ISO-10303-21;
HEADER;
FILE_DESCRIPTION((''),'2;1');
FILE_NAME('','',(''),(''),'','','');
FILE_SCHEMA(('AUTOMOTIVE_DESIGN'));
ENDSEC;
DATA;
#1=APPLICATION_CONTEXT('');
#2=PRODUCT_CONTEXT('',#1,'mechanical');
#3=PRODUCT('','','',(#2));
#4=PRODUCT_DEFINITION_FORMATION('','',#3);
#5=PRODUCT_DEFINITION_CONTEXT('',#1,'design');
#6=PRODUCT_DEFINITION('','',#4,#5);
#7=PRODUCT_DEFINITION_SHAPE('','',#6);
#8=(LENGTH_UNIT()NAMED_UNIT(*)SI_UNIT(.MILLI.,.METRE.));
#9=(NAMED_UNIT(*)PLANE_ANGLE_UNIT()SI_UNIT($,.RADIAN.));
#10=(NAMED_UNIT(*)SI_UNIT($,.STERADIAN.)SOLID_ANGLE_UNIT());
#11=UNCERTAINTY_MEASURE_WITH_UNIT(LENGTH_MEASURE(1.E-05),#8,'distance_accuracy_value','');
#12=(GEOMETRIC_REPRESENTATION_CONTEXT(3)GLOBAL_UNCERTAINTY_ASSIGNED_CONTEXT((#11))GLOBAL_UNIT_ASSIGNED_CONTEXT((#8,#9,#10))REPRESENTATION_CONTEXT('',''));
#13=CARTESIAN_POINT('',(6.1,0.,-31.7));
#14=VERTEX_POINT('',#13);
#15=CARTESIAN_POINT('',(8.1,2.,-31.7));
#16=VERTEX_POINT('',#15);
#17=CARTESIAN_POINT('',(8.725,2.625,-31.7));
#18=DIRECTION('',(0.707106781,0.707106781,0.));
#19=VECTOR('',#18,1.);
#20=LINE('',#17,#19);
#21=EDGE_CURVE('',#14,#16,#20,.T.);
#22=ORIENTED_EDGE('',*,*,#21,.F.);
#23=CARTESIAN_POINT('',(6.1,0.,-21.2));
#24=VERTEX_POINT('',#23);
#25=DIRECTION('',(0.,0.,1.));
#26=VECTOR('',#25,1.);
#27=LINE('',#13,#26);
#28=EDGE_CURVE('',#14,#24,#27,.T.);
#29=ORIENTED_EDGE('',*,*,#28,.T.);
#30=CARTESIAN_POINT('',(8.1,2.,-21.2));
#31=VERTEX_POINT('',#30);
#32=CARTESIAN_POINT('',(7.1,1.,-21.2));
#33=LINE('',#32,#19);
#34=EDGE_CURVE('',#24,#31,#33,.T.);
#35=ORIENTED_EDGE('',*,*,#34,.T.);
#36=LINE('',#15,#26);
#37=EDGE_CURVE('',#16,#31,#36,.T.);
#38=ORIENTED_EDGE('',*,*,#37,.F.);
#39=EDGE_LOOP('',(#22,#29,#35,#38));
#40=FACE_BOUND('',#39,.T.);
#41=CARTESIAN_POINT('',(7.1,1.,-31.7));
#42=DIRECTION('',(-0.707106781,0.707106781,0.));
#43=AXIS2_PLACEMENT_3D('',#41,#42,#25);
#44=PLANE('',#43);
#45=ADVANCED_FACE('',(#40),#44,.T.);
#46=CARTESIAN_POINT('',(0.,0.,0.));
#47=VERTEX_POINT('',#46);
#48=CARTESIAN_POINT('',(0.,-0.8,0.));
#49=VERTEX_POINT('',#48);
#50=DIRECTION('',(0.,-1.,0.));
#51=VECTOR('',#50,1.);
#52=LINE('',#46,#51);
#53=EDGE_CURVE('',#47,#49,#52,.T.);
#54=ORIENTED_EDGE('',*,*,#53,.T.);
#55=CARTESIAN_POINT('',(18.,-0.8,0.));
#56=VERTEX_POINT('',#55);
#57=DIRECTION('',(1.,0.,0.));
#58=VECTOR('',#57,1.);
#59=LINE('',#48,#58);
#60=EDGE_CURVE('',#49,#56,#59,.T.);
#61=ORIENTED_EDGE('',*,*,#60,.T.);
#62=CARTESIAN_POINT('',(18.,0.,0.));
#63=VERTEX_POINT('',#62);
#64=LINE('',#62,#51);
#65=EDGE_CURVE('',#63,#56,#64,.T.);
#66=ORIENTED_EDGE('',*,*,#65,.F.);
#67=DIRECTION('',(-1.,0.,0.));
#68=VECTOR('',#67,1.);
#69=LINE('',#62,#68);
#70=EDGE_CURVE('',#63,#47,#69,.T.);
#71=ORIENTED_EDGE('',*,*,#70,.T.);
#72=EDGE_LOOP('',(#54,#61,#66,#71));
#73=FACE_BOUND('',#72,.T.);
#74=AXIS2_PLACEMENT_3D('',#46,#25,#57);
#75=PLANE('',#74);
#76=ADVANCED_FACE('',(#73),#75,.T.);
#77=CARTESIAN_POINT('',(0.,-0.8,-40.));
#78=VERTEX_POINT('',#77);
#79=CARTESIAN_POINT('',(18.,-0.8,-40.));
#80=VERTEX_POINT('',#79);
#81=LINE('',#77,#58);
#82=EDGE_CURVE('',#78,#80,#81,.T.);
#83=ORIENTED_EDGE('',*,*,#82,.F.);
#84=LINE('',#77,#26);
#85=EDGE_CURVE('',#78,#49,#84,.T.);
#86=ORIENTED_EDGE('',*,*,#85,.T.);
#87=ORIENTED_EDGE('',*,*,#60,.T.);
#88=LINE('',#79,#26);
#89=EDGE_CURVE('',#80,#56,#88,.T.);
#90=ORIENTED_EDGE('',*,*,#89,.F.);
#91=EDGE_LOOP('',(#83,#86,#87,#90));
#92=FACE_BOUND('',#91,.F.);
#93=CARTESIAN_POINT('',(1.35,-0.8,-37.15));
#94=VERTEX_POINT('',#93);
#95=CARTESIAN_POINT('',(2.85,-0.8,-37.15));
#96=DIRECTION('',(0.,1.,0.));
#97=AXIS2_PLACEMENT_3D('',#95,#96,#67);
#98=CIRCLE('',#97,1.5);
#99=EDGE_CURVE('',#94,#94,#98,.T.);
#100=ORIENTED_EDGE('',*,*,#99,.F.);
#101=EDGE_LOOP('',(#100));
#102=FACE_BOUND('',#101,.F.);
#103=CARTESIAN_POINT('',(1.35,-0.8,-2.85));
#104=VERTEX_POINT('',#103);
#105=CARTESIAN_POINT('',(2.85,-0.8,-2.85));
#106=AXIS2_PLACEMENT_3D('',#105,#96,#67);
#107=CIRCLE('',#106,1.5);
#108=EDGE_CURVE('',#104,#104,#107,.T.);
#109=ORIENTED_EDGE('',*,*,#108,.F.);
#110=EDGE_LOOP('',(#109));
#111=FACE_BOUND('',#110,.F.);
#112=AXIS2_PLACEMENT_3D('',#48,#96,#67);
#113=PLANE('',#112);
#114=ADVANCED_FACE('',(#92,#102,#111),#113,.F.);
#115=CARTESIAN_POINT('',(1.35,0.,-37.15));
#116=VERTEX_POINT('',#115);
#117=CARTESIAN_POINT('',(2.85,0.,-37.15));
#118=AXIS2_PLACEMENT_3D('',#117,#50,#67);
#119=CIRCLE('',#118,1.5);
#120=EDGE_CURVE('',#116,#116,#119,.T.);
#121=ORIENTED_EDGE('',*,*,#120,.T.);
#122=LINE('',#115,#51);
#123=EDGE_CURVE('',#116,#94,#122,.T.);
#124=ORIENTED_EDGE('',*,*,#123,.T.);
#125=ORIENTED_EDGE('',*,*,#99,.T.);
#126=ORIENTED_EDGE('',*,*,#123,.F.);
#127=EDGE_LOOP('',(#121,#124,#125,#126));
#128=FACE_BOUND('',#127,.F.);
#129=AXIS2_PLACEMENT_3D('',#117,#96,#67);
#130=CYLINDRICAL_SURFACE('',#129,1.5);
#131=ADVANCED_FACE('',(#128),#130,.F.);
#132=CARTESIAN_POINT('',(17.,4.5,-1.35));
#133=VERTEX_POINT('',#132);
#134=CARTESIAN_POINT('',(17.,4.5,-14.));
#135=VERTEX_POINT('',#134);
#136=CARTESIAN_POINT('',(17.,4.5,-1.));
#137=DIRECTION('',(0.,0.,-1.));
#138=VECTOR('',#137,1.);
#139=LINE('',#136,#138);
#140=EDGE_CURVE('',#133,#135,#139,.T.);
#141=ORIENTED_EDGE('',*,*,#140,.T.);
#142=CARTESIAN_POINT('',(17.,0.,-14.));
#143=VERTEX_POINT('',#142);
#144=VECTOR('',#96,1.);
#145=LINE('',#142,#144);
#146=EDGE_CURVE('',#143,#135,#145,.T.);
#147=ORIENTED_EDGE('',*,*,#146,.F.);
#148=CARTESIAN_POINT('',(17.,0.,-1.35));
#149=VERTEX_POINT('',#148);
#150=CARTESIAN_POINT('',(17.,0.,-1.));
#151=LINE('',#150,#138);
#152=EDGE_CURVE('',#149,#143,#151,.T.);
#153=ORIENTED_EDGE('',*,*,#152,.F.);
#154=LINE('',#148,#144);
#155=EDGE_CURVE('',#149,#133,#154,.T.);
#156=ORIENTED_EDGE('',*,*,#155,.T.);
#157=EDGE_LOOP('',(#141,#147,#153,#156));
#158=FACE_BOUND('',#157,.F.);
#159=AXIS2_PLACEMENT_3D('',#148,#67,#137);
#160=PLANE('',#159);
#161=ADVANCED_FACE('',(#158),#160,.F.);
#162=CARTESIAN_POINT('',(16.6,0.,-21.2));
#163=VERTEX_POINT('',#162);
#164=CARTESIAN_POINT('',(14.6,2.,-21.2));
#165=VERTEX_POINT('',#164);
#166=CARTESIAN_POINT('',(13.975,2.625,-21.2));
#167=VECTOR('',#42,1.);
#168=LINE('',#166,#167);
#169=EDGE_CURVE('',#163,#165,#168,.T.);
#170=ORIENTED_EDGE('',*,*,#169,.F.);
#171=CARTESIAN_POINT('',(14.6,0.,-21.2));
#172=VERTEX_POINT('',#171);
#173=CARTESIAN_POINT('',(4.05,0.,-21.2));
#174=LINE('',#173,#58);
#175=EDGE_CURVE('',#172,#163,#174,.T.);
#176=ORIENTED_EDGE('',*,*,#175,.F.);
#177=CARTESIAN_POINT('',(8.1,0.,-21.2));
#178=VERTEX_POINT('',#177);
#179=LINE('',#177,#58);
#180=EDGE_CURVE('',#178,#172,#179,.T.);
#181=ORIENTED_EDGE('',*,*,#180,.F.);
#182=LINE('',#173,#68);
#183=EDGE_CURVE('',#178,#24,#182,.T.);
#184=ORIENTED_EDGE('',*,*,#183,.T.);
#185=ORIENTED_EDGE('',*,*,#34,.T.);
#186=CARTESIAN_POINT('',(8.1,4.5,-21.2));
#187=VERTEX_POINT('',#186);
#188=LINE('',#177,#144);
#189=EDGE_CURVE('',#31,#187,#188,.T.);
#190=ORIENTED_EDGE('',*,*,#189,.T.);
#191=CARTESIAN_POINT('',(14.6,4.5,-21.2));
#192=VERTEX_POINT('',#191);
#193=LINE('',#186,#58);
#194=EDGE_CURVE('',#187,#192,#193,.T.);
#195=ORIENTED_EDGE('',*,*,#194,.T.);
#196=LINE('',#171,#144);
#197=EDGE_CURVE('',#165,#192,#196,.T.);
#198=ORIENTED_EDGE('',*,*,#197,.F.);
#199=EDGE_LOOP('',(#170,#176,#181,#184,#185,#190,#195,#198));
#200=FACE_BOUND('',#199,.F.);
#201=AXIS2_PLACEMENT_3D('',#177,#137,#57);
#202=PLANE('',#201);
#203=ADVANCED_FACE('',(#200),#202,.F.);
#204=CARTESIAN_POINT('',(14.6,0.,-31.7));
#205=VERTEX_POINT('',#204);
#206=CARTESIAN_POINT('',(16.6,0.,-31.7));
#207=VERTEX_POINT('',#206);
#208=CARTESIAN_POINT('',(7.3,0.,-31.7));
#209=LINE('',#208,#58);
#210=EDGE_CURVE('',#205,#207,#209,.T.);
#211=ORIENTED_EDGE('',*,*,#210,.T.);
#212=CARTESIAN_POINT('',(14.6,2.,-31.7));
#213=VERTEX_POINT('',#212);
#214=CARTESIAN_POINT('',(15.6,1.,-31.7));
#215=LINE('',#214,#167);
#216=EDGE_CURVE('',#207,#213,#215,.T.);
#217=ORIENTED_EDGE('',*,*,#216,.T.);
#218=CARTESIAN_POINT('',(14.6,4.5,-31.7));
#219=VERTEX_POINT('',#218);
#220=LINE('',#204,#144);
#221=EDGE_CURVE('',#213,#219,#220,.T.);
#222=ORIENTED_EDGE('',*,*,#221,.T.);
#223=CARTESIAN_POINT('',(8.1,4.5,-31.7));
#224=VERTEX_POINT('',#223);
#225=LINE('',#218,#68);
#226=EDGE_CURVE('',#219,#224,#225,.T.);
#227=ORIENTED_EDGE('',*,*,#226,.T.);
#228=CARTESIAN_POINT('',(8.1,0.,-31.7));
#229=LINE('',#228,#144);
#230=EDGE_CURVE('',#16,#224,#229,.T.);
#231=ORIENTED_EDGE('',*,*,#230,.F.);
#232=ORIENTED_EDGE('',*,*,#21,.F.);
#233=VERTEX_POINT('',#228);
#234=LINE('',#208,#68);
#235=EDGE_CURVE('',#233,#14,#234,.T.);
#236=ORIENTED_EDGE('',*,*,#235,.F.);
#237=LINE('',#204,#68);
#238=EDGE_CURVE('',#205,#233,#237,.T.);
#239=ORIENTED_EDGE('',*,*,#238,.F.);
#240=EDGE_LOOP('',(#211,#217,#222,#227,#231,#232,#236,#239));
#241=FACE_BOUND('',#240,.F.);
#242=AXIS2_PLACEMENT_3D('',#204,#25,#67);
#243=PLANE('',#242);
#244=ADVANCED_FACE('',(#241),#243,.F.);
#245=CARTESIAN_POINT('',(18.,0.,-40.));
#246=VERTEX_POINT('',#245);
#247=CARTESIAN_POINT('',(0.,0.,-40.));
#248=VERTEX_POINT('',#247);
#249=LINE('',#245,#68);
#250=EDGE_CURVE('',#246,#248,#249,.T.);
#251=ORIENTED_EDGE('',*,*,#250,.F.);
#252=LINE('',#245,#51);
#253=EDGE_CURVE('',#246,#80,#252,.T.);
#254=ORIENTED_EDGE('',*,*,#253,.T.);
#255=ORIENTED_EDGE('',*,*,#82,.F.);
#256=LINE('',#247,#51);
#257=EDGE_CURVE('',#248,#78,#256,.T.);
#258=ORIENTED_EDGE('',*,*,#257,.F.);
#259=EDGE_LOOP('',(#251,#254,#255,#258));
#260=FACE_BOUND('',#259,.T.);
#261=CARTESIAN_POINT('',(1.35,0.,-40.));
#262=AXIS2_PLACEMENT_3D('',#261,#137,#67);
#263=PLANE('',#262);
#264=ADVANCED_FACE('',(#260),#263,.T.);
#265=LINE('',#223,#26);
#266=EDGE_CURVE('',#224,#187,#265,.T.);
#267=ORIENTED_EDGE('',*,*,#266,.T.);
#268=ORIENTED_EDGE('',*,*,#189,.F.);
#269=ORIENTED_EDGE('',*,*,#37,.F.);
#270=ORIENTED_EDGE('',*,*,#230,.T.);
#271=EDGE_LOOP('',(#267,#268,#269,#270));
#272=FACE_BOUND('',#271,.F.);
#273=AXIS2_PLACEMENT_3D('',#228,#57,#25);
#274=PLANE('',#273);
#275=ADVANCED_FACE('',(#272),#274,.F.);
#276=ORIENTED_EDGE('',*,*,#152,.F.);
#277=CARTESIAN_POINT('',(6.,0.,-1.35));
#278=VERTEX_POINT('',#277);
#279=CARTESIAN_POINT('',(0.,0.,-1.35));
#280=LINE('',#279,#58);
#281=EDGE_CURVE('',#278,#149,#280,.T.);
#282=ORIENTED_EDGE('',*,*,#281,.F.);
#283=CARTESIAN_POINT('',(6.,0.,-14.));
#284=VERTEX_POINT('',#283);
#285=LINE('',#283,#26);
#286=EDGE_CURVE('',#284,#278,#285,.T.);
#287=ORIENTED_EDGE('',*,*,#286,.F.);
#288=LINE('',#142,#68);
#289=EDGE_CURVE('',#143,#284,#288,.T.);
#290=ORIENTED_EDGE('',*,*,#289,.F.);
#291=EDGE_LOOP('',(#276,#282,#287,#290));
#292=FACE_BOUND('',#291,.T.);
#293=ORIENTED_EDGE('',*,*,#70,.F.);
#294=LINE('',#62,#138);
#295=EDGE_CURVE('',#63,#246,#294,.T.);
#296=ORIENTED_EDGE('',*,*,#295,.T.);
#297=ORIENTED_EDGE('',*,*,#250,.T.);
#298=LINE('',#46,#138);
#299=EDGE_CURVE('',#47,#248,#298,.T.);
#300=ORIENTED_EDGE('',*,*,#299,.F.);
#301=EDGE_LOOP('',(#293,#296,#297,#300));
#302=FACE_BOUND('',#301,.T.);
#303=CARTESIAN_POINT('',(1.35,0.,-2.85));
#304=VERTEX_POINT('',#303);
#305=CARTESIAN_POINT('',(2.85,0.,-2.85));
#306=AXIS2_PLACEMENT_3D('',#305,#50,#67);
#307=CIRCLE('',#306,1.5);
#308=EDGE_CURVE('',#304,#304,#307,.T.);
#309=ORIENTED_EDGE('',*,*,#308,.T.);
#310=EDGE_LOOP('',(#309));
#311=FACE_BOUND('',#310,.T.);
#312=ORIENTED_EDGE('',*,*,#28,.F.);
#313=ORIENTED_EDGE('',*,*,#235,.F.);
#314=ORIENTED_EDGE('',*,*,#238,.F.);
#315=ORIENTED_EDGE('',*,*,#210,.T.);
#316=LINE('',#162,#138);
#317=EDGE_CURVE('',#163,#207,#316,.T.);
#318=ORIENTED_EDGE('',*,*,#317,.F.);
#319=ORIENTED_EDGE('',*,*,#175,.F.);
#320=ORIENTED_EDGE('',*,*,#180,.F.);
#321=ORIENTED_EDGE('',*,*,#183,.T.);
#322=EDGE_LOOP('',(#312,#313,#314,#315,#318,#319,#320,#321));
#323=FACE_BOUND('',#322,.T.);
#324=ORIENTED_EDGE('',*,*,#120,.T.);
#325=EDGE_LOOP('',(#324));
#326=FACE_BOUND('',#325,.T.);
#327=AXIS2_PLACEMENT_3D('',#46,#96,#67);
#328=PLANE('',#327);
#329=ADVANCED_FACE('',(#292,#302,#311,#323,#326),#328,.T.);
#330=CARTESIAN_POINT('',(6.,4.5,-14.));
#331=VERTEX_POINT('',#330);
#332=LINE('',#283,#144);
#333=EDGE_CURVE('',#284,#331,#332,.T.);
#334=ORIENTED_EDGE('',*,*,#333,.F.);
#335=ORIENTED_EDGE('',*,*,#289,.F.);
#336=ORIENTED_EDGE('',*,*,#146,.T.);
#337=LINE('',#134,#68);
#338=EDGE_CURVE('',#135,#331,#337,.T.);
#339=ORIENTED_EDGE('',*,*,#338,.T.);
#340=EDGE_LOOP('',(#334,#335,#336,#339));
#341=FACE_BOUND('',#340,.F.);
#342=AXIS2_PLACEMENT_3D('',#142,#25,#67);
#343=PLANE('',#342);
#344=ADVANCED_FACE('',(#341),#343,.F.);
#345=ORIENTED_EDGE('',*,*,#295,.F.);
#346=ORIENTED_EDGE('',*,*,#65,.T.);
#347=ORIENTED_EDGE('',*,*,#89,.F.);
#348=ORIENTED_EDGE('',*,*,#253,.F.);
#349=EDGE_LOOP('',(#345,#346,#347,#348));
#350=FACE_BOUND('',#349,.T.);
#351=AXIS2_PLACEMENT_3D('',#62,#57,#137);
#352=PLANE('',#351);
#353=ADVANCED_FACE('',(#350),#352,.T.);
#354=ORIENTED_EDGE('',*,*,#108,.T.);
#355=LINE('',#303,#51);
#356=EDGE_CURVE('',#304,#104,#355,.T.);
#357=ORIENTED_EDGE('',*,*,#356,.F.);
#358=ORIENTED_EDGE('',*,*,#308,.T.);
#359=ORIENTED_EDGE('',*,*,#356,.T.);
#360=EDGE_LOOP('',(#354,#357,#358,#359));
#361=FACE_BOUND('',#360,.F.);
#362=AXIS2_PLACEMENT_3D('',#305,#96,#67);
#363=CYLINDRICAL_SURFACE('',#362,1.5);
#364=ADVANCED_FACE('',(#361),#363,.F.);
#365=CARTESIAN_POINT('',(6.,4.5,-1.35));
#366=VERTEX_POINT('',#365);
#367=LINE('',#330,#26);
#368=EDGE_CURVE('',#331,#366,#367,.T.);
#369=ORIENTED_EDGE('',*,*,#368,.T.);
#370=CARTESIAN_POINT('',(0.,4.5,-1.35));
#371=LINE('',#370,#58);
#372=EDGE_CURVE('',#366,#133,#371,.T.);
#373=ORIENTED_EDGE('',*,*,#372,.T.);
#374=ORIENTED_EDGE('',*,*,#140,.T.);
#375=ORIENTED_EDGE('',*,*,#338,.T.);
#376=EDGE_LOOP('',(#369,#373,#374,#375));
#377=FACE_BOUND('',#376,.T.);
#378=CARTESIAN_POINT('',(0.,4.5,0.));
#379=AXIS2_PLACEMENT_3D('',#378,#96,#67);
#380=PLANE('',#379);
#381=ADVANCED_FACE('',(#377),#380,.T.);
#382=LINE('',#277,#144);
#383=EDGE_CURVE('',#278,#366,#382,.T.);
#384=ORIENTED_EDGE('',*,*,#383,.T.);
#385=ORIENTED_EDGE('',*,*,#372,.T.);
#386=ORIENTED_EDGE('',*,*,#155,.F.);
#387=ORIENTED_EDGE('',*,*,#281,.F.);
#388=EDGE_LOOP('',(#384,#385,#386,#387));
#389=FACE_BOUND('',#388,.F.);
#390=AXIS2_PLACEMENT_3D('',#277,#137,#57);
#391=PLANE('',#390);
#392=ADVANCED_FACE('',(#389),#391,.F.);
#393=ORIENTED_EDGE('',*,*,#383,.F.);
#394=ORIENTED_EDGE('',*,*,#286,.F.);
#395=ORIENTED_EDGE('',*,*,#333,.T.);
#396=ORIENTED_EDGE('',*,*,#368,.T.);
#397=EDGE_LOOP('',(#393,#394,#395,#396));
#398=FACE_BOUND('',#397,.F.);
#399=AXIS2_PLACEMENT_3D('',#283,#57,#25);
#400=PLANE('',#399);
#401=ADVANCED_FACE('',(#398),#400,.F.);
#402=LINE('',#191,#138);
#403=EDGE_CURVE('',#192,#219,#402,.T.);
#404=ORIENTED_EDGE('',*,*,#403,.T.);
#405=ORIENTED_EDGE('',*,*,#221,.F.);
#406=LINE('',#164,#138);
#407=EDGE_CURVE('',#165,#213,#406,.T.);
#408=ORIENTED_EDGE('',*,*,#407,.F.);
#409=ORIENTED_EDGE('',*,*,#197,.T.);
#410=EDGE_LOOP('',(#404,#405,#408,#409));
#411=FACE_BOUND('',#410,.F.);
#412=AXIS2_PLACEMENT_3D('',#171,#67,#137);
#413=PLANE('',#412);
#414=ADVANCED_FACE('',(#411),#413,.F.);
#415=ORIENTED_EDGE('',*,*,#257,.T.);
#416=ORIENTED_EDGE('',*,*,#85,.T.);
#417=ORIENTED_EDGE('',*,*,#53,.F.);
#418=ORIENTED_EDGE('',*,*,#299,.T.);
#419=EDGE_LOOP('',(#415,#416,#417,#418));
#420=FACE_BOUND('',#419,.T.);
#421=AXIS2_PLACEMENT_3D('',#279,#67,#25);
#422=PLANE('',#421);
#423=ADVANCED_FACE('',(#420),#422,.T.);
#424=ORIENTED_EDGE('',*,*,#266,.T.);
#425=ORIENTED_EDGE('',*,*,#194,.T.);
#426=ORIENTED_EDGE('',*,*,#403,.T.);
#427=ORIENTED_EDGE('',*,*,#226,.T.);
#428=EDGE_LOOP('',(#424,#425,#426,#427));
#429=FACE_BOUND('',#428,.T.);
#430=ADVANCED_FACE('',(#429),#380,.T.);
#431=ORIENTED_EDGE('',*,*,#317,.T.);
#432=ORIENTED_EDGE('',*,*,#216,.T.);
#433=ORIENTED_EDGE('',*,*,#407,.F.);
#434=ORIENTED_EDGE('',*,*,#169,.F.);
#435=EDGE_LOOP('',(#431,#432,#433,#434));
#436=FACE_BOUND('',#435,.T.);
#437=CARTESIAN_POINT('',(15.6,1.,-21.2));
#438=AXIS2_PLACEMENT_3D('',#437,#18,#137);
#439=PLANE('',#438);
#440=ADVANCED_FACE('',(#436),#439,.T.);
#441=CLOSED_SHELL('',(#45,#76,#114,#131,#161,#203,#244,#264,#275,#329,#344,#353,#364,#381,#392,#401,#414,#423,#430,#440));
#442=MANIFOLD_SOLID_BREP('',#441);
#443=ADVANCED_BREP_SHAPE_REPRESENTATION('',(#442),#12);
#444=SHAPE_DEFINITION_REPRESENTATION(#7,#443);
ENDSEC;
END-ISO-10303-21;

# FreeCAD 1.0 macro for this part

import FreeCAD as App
import Part
import Sketcher

V = App.Vector
Q = App.Units.Quantity


def edges_at(feature, points):
    """Names of the edges that pass closest to the given points."""
    edges = feature.Shape.Edges
    near = lambda p: min(range(len(edges)), key=lambda i: edges[i].distToShape(Part.Vertex(*p))[0])
    return sorted({f"Edge{near(p) + 1}" for p in points})

doc = App.newDocument("Part")
body = doc.addObject("PartDesign::Body", "Body")

sketch1 = doc.addObject("Sketcher::SketchObject", "Sketch")
body.addObject(sketch1)
sketch1.AttachmentSupport = (doc.XZ_Plane, [""])
sketch1.MapMode = "FlatFace"
sketch1.addGeometry(Part.LineSegment(V(0, 0, 0), V(18, 0, 0)), False)
sketch1.addGeometry(Part.LineSegment(V(18, 0, 0), V(18, -40, 0)), False)
sketch1.addGeometry(Part.LineSegment(V(18, -40, 0), V(0, -40, 0)), False)
sketch1.addGeometry(Part.LineSegment(V(0, -40, 0), V(0, 0, 0)), False)
sketch1.addGeometry(Part.Circle(V(2.9, -37.1, 0), V(0, 0, 1), 1.5), False)
sketch1.addGeometry(Part.Circle(V(2.9, -2.9, 0), V(0, 0, 1), 1.5), False)
sketch1.addConstraint(Sketcher.Constraint("Coincident", 0, 2, 1, 1))
sketch1.addConstraint(Sketcher.Constraint("Coincident", 1, 2, 2, 1))
sketch1.addConstraint(Sketcher.Constraint("Coincident", 2, 2, 3, 1))
sketch1.addConstraint(Sketcher.Constraint("Coincident", 3, 2, 0, 1))
sketch1.addConstraint(Sketcher.Constraint("Horizontal", 0))
sketch1.addConstraint(Sketcher.Constraint("Vertical", 1))
sketch1.addConstraint(Sketcher.Constraint("Horizontal", 2))
sketch1.addConstraint(Sketcher.Constraint("Vertical", 3))
sketch1.addConstraint(Sketcher.Constraint("Coincident", 3, 2, -1, 1))
sketch1.addConstraint(Sketcher.Constraint("Equal", 4, 5))
sketch1.addConstraint(Sketcher.Constraint("Vertical", 4, 3, 5, 3))
sketch1.addConstraint(Sketcher.Constraint("Diameter", 4, Q("3 mm")))
sketch1.addConstraint(Sketcher.Constraint("DistanceX", 0, 1, 0, 2, Q("18 mm")))
sketch1.addConstraint(Sketcher.Constraint("DistanceY", 1, 2, 1, 1, Q("40 mm")))
sketch1.addConstraint(Sketcher.Constraint("DistanceY", 4, 3, 5, 3, Q("34.3 mm")))
sketch1.addConstraint(Sketcher.Constraint("DistanceX", -1, 1, 4, 3, Q("2.85 mm")))
sketch1.addConstraint(Sketcher.Constraint("DistanceY", 4, 3, -1, 1, Q("37.15 mm")))
pad1 = doc.addObject("PartDesign::Pad", "Pad")
body.addObject(pad1)
pad1.Profile = sketch1
pad1.Length = 0.8

sketch2 = doc.addObject("Sketcher::SketchObject", "Sketch001")
body.addObject(sketch2)
sketch2.AttachmentSupport = (doc.XZ_Plane, [""])
sketch2.MapMode = "FlatFace"
sketch2.addGeometry(Part.LineSegment(V(6, -1, 0), V(17, -1, 0)), False)
sketch2.addGeometry(Part.LineSegment(V(17, -1, 0), V(17, -14, 0)), False)
sketch2.addGeometry(Part.LineSegment(V(17, -14, 0), V(6, -14, 0)), False)
sketch2.addGeometry(Part.LineSegment(V(6, -14, 0), V(6, -1, 0)), False)
sketch2.addConstraint(Sketcher.Constraint("Coincident", 0, 2, 1, 1))
sketch2.addConstraint(Sketcher.Constraint("Coincident", 1, 2, 2, 1))
sketch2.addConstraint(Sketcher.Constraint("Coincident", 2, 2, 3, 1))
sketch2.addConstraint(Sketcher.Constraint("Coincident", 3, 2, 0, 1))
sketch2.addConstraint(Sketcher.Constraint("Horizontal", 0))
sketch2.addConstraint(Sketcher.Constraint("Vertical", 1))
sketch2.addConstraint(Sketcher.Constraint("Horizontal", 2))
sketch2.addConstraint(Sketcher.Constraint("Vertical", 3))
sketch2.addConstraint(Sketcher.Constraint("DistanceX", 0, 1, 0, 2, Q("11 mm")))
sketch2.addConstraint(Sketcher.Constraint("DistanceY", 0, 2, -1, 1, Q("1.35 mm")))
sketch2.addConstraint(Sketcher.Constraint("DistanceX", -1, 1, 0, 2, Q("17 mm")))
sketch2.addConstraint(Sketcher.Constraint("DistanceY", 1, 2, -1, 1, Q("14 mm")))
pad2 = doc.addObject("PartDesign::Pad", "Pad001")
body.addObject(pad2)
pad2.Profile = sketch2
pad2.Length = 4.5
pad2.Reversed = True

sketch3 = doc.addObject("Sketcher::SketchObject", "Sketch002")
body.addObject(sketch3)
sketch3.AttachmentSupport = (doc.XZ_Plane, [""])
sketch3.MapMode = "FlatFace"
sketch3.addGeometry(Part.LineSegment(V(8, -32, 0), V(8, -21, 0)), False)
sketch3.addGeometry(Part.LineSegment(V(8, -21, 0), V(15, -21, 0)), False)
sketch3.addGeometry(Part.LineSegment(V(15, -21, 0), V(15, -32, 0)), False)
sketch3.addGeometry(Part.LineSegment(V(15, -32, 0), V(8, -32, 0)), False)
sketch3.addConstraint(Sketcher.Constraint("Coincident", 0, 2, 1, 1))
sketch3.addConstraint(Sketcher.Constraint("Coincident", 1, 2, 2, 1))
sketch3.addConstraint(Sketcher.Constraint("Coincident", 2, 2, 3, 1))
sketch3.addConstraint(Sketcher.Constraint("Coincident", 3, 2, 0, 1))
sketch3.addConstraint(Sketcher.Constraint("Vertical", 0))
sketch3.addConstraint(Sketcher.Constraint("Horizontal", 1))
sketch3.addConstraint(Sketcher.Constraint("Vertical", 2))
sketch3.addConstraint(Sketcher.Constraint("Horizontal", 3))
sketch3.addConstraint(Sketcher.Constraint("DistanceX", 1, 1, 1, 2, Q("6.5 mm")))
sketch3.addConstraint(Sketcher.Constraint("DistanceY", 0, 1, 0, 2, Q("10.5 mm")))
sketch3.addConstraint(Sketcher.Constraint("DistanceX", -1, 1, 0, 2, Q("8.1 mm")))
sketch3.addConstraint(Sketcher.Constraint("DistanceY", 0, 2, -1, 1, Q("21.2 mm")))
pad3 = doc.addObject("PartDesign::Pad", "Pad002")
body.addObject(pad3)
pad3.Profile = sketch3
pad3.Length = 4.5
pad3.Reversed = True
doc.recompute()

chamfer = doc.addObject("PartDesign::Chamfer", "Chamfer")
body.addObject(chamfer)
chamfer.Base = (pad3, edges_at(pad3, [(8.1, 0, -26.45), (14.6, 0, -26.45)]))
chamfer.Size = 2

doc.recompute()
